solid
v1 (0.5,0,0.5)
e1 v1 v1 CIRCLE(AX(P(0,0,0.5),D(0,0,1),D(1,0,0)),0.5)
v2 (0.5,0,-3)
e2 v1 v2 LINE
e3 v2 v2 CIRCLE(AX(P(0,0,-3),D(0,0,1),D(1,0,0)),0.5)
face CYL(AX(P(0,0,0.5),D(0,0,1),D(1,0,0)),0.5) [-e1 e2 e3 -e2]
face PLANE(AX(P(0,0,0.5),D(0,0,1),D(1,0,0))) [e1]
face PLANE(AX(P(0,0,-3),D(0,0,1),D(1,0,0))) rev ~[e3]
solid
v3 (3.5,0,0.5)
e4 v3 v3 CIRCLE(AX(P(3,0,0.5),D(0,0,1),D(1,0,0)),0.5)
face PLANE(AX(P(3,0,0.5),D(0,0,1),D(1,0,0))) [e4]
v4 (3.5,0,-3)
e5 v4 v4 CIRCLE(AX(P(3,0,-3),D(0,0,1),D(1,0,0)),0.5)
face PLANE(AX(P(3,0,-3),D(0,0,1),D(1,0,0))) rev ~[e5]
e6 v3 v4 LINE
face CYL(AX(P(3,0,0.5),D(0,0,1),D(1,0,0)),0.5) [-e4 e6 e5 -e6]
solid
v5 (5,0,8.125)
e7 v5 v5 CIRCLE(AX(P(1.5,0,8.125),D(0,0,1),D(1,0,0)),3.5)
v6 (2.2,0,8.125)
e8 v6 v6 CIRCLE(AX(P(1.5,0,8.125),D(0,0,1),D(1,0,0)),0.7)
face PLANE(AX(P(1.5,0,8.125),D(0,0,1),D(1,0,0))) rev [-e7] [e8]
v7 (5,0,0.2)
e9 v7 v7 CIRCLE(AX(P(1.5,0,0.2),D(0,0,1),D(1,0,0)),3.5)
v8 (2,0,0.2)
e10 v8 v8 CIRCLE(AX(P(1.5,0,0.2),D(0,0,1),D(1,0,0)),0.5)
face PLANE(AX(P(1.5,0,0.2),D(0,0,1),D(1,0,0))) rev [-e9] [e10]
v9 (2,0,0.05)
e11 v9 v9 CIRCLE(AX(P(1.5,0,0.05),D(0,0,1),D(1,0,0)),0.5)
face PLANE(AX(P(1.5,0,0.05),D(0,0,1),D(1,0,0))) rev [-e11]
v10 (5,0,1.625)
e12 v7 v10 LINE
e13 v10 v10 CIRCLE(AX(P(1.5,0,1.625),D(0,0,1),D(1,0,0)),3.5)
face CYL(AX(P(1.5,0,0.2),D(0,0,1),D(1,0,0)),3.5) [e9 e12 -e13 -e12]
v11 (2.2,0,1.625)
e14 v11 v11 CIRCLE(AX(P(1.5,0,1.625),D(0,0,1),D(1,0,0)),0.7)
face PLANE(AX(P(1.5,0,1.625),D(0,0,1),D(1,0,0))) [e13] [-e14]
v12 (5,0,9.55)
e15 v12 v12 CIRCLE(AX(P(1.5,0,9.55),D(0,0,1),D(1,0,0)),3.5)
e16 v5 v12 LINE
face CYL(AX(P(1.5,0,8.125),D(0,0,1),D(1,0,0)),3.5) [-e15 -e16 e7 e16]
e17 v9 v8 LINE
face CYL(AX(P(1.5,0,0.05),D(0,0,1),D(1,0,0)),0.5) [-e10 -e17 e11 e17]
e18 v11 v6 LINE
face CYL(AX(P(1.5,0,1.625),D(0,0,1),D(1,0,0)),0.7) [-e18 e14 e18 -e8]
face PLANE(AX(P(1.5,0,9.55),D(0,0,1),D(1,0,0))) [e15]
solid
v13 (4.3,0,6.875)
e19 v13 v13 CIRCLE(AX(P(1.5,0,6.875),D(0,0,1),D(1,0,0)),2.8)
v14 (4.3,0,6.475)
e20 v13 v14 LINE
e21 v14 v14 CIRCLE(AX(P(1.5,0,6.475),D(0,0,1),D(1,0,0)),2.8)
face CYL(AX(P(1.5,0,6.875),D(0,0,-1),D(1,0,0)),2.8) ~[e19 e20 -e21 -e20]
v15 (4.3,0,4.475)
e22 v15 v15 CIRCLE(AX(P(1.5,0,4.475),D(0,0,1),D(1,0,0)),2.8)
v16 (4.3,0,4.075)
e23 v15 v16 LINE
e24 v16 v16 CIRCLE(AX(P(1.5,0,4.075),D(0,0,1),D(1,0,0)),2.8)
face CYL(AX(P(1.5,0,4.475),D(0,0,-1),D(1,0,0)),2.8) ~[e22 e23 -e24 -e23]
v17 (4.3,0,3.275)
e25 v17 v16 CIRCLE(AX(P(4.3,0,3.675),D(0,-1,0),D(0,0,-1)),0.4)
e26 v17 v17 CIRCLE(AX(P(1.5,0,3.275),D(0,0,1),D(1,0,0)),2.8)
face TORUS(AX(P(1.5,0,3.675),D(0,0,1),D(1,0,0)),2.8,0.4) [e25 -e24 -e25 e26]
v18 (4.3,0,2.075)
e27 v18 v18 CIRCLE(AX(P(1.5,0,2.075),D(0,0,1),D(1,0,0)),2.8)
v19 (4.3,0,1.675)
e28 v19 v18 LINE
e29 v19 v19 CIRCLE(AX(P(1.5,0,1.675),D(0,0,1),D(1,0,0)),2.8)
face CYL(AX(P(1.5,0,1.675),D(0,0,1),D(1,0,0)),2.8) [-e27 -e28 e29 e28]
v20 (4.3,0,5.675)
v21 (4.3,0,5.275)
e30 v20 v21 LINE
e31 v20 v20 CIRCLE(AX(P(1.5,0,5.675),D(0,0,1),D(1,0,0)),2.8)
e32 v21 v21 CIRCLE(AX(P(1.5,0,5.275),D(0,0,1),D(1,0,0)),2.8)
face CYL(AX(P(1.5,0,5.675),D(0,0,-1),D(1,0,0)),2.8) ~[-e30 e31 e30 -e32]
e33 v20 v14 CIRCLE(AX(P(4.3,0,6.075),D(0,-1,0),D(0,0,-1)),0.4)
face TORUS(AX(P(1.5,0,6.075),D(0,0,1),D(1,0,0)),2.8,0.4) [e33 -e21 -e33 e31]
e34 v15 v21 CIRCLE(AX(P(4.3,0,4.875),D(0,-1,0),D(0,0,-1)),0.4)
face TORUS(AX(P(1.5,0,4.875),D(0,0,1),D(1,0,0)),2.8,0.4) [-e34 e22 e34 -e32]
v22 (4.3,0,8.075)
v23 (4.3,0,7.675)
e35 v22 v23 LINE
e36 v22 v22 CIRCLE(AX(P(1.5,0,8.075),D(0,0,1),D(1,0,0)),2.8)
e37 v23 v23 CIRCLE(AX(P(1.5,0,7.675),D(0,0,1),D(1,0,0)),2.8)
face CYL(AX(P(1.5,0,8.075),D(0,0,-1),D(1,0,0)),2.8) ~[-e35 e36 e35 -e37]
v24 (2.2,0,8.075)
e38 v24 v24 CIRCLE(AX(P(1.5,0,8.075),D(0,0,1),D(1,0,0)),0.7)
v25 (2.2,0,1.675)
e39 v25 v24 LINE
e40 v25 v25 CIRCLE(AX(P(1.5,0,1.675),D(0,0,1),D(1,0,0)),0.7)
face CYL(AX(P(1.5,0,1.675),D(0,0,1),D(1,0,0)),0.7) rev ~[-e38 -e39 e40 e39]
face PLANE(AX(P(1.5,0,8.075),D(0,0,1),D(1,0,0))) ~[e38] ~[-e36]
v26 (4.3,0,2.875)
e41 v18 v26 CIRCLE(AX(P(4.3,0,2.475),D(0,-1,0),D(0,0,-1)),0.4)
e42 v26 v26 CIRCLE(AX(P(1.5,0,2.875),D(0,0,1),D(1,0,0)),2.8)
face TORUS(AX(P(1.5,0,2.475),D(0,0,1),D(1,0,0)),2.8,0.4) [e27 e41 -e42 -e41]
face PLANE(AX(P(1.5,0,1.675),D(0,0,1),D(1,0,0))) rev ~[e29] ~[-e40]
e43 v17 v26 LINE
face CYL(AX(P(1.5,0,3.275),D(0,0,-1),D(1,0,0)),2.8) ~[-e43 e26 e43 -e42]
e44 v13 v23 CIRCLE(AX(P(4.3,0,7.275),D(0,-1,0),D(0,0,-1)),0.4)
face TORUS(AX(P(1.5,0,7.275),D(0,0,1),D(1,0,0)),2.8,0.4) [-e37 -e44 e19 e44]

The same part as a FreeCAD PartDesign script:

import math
import FreeCAD as App
import Part
import Sketcher
from FreeCAD import Vector


def add_polygon(sketch, points):
    """Adds a closed chain of lines whose ends are joined by coincident constraints."""
    first, n = sketch.GeometryCount, len(points)
    for a, b in zip(points, points[1:] + points[:1]):
        sketch.addGeometry(Part.LineSegment(App.Vector(*a, 0), App.Vector(*b, 0)), False)
    for i in range(n):
        sketch.addConstraint(Sketcher.Constraint("Coincident", first + i, 2, first + (i + 1) % n, 1))

doc = App.newDocument("Part")
body = doc.addObject("PartDesign::Body", "Body")
body.AllowCompound = True

# Sketch on XY plane
sketch1 = body.newObject("Sketcher::SketchObject", "Sketch")
sketch1.AttachmentSupport = (doc.getObject("XY_Plane"), [""])
sketch1.MapMode = "FlatFace"
sketch1.AttachmentOffset = App.Placement(Vector(0, 0, 0.5), App.Rotation())
sketch1.addGeometry([
    Part.Circle(Vector(0, 0, 0), Vector(0, 0, 1), 0.5),
    Part.Circle(Vector(3, 0, 0), Vector(0, 0, 1), 0.5),
], False)
sketch1.addConstraint([
    Sketcher.Constraint("Coincident", 0, 3, -1, 1),
    Sketcher.Constraint("Equal", 0, 1),
    Sketcher.Constraint("PointOnObject", 1, 3, -1),
    Sketcher.Constraint("Diameter", 0, 1.0),
    Sketcher.Constraint("DistanceX", -1, 1, 1, 3, 3.0),
])
pad1 = body.newObject("PartDesign::Pad", "Pad")
pad1.Profile = sketch1
pad1.Length = 3.5
pad1.Reversed = True
body2 = doc.addObject("PartDesign::Body", "Body001")

# Sketch on XZ plane
sketch2 = body2.newObject("Sketcher::SketchObject", "Sketch001")
sketch2.AttachmentSupport = (doc.getObject("XZ_Plane001"), [""])
sketch2.MapMode = "FlatFace"
add_polygon(sketch2, [(1.5, 0.05), (2, 0.05), (2, 0.2), (5, 0.2), (5, 1.62), (2.2, 1.62), (2.2, 8.12), (5, 8.12), (5, 9.55), (1.5, 9.55)])  # lines 0-9
sketch2.addGeometry(Part.LineSegment(Vector(1.5, 0.05, 0), Vector(1.5, 9.55, 0)), True)  # axis
sketch2.addConstraint([
    Sketcher.Constraint("Horizontal", 0),
    Sketcher.Constraint("Vertical", 1),
    Sketcher.Constraint("Horizontal", 2),
    Sketcher.Constraint("Vertical", 3),
    Sketcher.Constraint("Horizontal", 4),
    Sketcher.Constraint("Vertical", 5),
    Sketcher.Constraint("Horizontal", 6),
    Sketcher.Constraint("Vertical", 7),
    Sketcher.Constraint("Horizontal", 8),
    Sketcher.Constraint("Vertical", 9),
    Sketcher.Constraint("Vertical", 10),
    Sketcher.Constraint("Coincident", 10, 1, 9, 2),
    Sketcher.Constraint("Horizontal", 7, 2, 10, 2),
    Sketcher.Constraint("Vertical", 3, 2, 6, 2),
    Sketcher.Constraint("Equal", 3, 7),
    Sketcher.Constraint("DistanceX", 2, 1, 2, 2, 3.0),
    Sketcher.Constraint("DistanceX", 0, 1, 0, 2, 0.5),
    Sketcher.Constraint("DistanceX", 4, 2, 4, 1, 2.8),
    Sketcher.Constraint("DistanceY", 5, 1, 5, 2, 6.5),
    Sketcher.Constraint("DistanceY", 9, 2, 9, 1, 9.5),
    Sketcher.Constraint("DistanceX", -1, 1, 0, 2, 2.0),
    Sketcher.Constraint("DistanceY", 1, 1, 1, 2, 0.15),
    Sketcher.Constraint("DistanceY", -1, 1, 1, 2, 0.2),
])
revolution = body2.newObject("PartDesign::Revolution", "Revolution")
revolution.Profile = sketch2
revolution.ReferenceAxis = (sketch2, ["Axis0"])
revolution.Angle = 360
body3 = doc.addObject("PartDesign::Body", "Body002")

# Sketch on XZ plane
sketch3 = body3.newObject("Sketcher::SketchObject", "Sketch002")
sketch3.AttachmentSupport = (doc.getObject("XZ_Plane002"), [""])
sketch3.MapMode = "FlatFace"
sketch3.addGeometry([
    Part.LineSegment(Vector(2.2, 1.68, 0), Vector(4.3, 1.68, 0)),  # 0
    Part.LineSegment(Vector(4.3, 1.68, 0), Vector(4.3, 2.08, 0)),  # 1
    Part.ArcOfCircle(Part.Circle(Vector(4.3, 2.48, 0), Vector(0, 0, 1), 0.4), math.radians(-90), math.radians(90)),  # 2
    Part.LineSegment(Vector(4.3, 2.88, 0), Vector(4.3, 3.27, 0)),  # 3
    Part.ArcOfCircle(Part.Circle(Vector(4.3, 3.67, 0), Vector(0, 0, 1), 0.4), math.radians(-90), math.radians(90)),  # 4
    Part.LineSegment(Vector(4.3, 4.08, 0), Vector(4.3, 4.47, 0)),  # 5
    Part.ArcOfCircle(Part.Circle(Vector(4.3, 4.88, 0), Vector(0, 0, 1), 0.4), math.radians(-90), math.radians(90)),  # 6
    Part.LineSegment(Vector(4.3, 5.28, 0), Vector(4.3, 5.67, 0)),  # 7
    Part.ArcOfCircle(Part.Circle(Vector(4.3, 6.08, 0), Vector(0, 0, 1), 0.4), math.radians(-90), math.radians(90)),  # 8
    Part.LineSegment(Vector(4.3, 6.47, 0), Vector(4.3, 6.88, 0)),  # 9
    Part.ArcOfCircle(Part.Circle(Vector(4.3, 7.28, 0), Vector(0, 0, 1), 0.4), math.radians(-90), math.radians(90)),  # 10
    Part.LineSegment(Vector(4.3, 7.67, 0), Vector(4.3, 8.07, 0)),  # 11
    Part.LineSegment(Vector(4.3, 8.07, 0), Vector(2.2, 8.07, 0)),  # 12
    Part.LineSegment(Vector(2.2, 8.07, 0), Vector(2.2, 1.68, 0)),  # 13
], False)
sketch3.addGeometry(Part.LineSegment(Vector(1.5, 1.68, 0), Vector(1.5, 8.07, 0)), True)  # axis
sketch3.addConstraint([
    Sketcher.Constraint("Coincident", 0, 2, 1, 1),
    Sketcher.Constraint("Coincident", 1, 2, 2, 1),
    Sketcher.Constraint("Coincident", 2, 2, 3, 1),
    Sketcher.Constraint("Coincident", 3, 2, 4, 1),
    Sketcher.Constraint("Coincident", 4, 2, 5, 1),
    Sketcher.Constraint("Coincident", 5, 2, 6, 1),
    Sketcher.Constraint("Coincident", 6, 2, 7, 1),
    Sketcher.Constraint("Coincident", 7, 2, 8, 1),
    Sketcher.Constraint("Coincident", 8, 2, 9, 1),
    Sketcher.Constraint("Coincident", 9, 2, 10, 1),
    Sketcher.Constraint("Coincident", 10, 2, 11, 1),
    Sketcher.Constraint("Coincident", 11, 2, 12, 1),
    Sketcher.Constraint("Coincident", 12, 2, 13, 1),
    Sketcher.Constraint("Coincident", 13, 2, 0, 1),
    Sketcher.Constraint("Horizontal", 0),
    Sketcher.Constraint("Vertical", 1),
    Sketcher.Constraint("Vertical", 3),
    Sketcher.Constraint("Vertical", 5),
    Sketcher.Constraint("Vertical", 7),
    Sketcher.Constraint("Vertical", 9),
    Sketcher.Constraint("Vertical", 11),
    Sketcher.Constraint("Horizontal", 12),
    Sketcher.Constraint("Vertical", 13),
    Sketcher.Constraint("Vertical", 14),
    Sketcher.Constraint("Equal", 2, 4),
    Sketcher.Constraint("Equal", 4, 6),
    Sketcher.Constraint("Equal", 6, 8),
    Sketcher.Constraint("Equal", 8, 10),
    Sketcher.Constraint("Horizontal", 13, 2, 14, 1),
    Sketcher.Constraint("Horizontal", 12, 2, 14, 2),
    Sketcher.Constraint("Vertical", 2, 3, 4, 3),
    Sketcher.Constraint("Vertical", 4, 3, 6, 3),
    Sketcher.Constraint("Vertical", 6, 3, 8, 3),
    Sketcher.Constraint("Vertical", 8, 3, 10, 3),
    Sketcher.Constraint("Vertical", 10, 3, 0, 2),
    Sketcher.Constraint("Vertical", 1, 2, 2, 2),
    Sketcher.Constraint("Vertical", 3, 2, 4, 2),
    Sketcher.Constraint("Vertical", 5, 2, 6, 2),
    Sketcher.Constraint("Vertical", 7, 2, 8, 2),
    Sketcher.Constraint("Vertical", 9, 2, 10, 2),
    Sketcher.Constraint("Equal", 1, 3),
    Sketcher.Constraint("Equal", 3, 5),
    Sketcher.Constraint("Equal", 5, 7),
    Sketcher.Constraint("Equal", 7, 9),
    Sketcher.Constraint("Equal", 9, 11),
    Sketcher.Constraint("Radius", 2, 0.4),
    Sketcher.Constraint("DistanceX", 0, 1, 0, 2, 2.1),
    Sketcher.Constraint("DistanceY", 1, 1, 1, 2, 0.4),
    Sketcher.Constraint("DistanceX", -1, 1, 2, 3, 4.3),
    Sketcher.Constraint("DistanceX", -1, 1, 14, 1, 1.5),
    Sketcher.Constraint("DistanceY", -1, 1, 2, 3, 2.475),
])
revolution2 = body3.newObject("PartDesign::Revolution", "Revolution001")
revolution2.Profile = sketch3
revolution2.ReferenceAxis = (sketch3, ["Axis0"])
revolution2.Angle = 360

doc.recompute()
